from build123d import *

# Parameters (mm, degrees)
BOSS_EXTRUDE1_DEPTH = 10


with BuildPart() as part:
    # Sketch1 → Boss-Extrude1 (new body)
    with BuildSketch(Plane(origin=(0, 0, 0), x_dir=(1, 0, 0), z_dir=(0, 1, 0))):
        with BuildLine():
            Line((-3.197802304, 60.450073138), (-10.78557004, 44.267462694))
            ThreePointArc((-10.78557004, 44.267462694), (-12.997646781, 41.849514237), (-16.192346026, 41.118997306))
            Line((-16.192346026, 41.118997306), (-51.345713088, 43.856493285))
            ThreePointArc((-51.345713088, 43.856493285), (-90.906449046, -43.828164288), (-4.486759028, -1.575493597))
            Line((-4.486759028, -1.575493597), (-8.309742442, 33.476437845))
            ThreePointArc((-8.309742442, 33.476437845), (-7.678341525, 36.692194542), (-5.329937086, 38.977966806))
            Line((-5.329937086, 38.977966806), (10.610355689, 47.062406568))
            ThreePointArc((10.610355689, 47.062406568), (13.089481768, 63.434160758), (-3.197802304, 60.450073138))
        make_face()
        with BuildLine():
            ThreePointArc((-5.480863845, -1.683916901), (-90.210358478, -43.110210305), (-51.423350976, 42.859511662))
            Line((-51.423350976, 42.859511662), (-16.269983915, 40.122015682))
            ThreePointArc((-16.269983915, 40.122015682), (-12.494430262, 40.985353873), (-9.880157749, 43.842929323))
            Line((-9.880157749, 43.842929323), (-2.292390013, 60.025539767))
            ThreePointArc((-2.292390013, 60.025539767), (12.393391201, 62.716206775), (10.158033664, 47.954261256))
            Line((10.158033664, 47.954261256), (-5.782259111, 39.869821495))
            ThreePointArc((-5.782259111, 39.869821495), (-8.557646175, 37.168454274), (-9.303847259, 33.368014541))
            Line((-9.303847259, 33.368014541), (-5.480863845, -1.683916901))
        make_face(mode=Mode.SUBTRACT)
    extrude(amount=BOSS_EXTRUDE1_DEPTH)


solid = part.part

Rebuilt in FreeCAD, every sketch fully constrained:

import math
import FreeCAD as App
import Part
import Sketcher
from FreeCAD import Vector
Q = App.Units.Quantity

doc = App.newDocument("Part")
params = doc.addObject("Spreadsheet::Sheet", "Params")
for row, (alias, value) in enumerate([
    ("sketch1_radius", "5.5 mm"),
    ("sketch1_radius2", "6.5 mm"),
    ("sketch1_radius3", "51.13 mm"),
    ("sketch1_radius4", "10.17 mm"),
    ("pad1_length", "10 mm"),
], start=1):
    params.set(f"A{row}", alias)
    params.set(f"B{row}", "=" + value)
    params.setAlias(f"B{row}", alias)

body = doc.addObject("PartDesign::Body", "Body")

sketch1 = body.newObject("Sketcher::SketchObject", "Sketch")
sketch1.AttachmentSupport = (doc.getObject("XZ_Plane"), [""])
sketch1.MapMode = "FlatFace"
sketch1.addGeometry([
    Part.LineSegment(Vector(-3.197802, -60.450073, 0), Vector(-10.78557, -44.267463, 0)),
    Part.ArcOfCircle(Part.Circle(Vector(-15.765338, -46.602396, 0), Vector(0, 0, 1), 5.5), math.radians(25.121131), math.radians(94.452804)),
    Part.LineSegment(Vector(-16.192346, -41.118997, 0), Vector(-51.345713, -43.856493, 0)),
    Part.ArcOfCircle(Part.Circle(Vector(-55.315338, 7.119177, 0), Vector(0, 0, 1), 51.13), math.radians(-6.224434), math.radians(274.452804)),
    Part.LineSegment(Vector(-4.486759, 1.575494, 0), Vector(-8.309742, -33.476438, 0)),
    Part.ArcOfCircle(Part.Circle(Vector(-2.842166, -34.072766, 0), Vector(0, 0, 1), 5.5), math.radians(173.775566), math.radians(243.107239)),
    Part.LineSegment(Vector(-5.329937, -38.977967, 0), Vector(10.610356, -47.062407, 0)),
    Part.ArcOfCircle(Part.Circle(Vector(6.010241, -56.132569, 0), Vector(0, 0, 1), 10.17), math.radians(-154.878869), math.radians(63.107239)),
    Part.LineSegment(Vector(-9.303847, -33.368015, 0), Vector(-5.480864, 1.683917, 0)),
    Part.ArcOfCircle(Part.Circle(Vector(-55.315338, 7.119177, 0), Vector(0, 0, 1), 50.13), math.radians(-6.224434), math.radians(274.452804)),
    Part.LineSegment(Vector(-51.423351, -42.859512, 0), Vector(-16.269984, -40.122016, 0)),
    Part.ArcOfCircle(Part.Circle(Vector(-15.765338, -46.602396, 0), Vector(0, 0, 1), 6.5), math.radians(25.121131), math.radians(94.452804)),
    Part.LineSegment(Vector(-9.880158, -43.842929, 0), Vector(-2.29239, -60.02554, 0)),
    Part.ArcOfCircle(Part.Circle(Vector(6.010241, -56.132569, 0), Vector(0, 0, 1), 9.17), math.radians(-154.878869), math.radians(63.107239)),
    Part.LineSegment(Vector(10.158034, -47.954261, 0), Vector(-5.782259, -39.869821, 0)),
    Part.ArcOfCircle(Part.Circle(Vector(-2.842166, -34.072766, 0), Vector(0, 0, 1), 6.5), math.radians(173.775566), math.radians(243.107239)),
], False)
sketch1.addConstraint([
    Sketcher.Constraint("Tangent", 0, 2, 1, 1),
    Sketcher.Constraint("Tangent", 1, 2, 2, 1),
    Sketcher.Constraint("Tangent", 2, 2, 3, 2),
    Sketcher.Constraint("Tangent", 3, 1, 4, 1),
    Sketcher.Constraint("Tangent", 4, 2, 5, 1),
    Sketcher.Constraint("Tangent", 5, 2, 6, 1),
    Sketcher.Constraint("Tangent", 6, 2, 7, 2),
    Sketcher.Constraint("Tangent", 7, 1, 0, 1),
    Sketcher.Constraint("Tangent", 8, 2, 9, 1),
    Sketcher.Constraint("Tangent", 9, 2, 10, 1),
    Sketcher.Constraint("Tangent", 10, 2, 11, 2),
    Sketcher.Constraint("Tangent", 11, 1, 12, 1),
    Sketcher.Constraint("Tangent", 12, 2, 13, 1),
    Sketcher.Constraint("Tangent", 13, 2, 14, 1),
    Sketcher.Constraint("Tangent", 14, 2, 15, 2),
    Sketcher.Constraint("Tangent", 15, 1, 8, 1),
    Sketcher.Constraint("Coincident", 9, 3, 3, 3),
    Sketcher.Constraint("Coincident", 11, 3, 1, 3),
    Sketcher.Constraint("Coincident", 13, 3, 7, 3),
    Sketcher.Constraint("Coincident", 15, 3, 5, 3),
    Sketcher.Constraint("Equal", 1, 5),
    Sketcher.Constraint("Equal", 11, 15),
    Sketcher.Constraint("Parallel", 4, 8),
    Sketcher.Constraint("Parallel", 0, 12),
    Sketcher.Constraint("Equal", 2, 4),
    Sketcher.Constraint("Equal", 0, 6),
    Sketcher.Constraint("Radius", 1, Q("5.5 mm")),
    Sketcher.Constraint("Radius", 11, Q("6.5 mm")),
    Sketcher.Constraint("Radius", 3, Q("51.13 mm")),
    Sketcher.Constraint("Radius", 7, Q("10.17 mm")),
    Sketcher.Constraint("DistanceX", 3, 3, 1, 3, Q("39.550001 mm")),
    Sketcher.Constraint("DistanceY", 1, 3, 1, 2, Q("5.483399 mm")),
    Sketcher.Constraint("DistanceY", 5, 2, 5, 3, Q("4.905201 mm")),
    Sketcher.Constraint("DistanceX", 11, 1, 14, 2, Q("4.097899 mm")),
    Sketcher.Constraint("DistanceX", 3, 3, -1, 1, Q("55.315338 mm")),
    Sketcher.Constraint("DistanceY", 7, 3, -1, 1, Q("56.132569 mm")),
])
sketch1.setExpression("Constraints[26]", "Params.sketch1_radius")
sketch1.setExpression("Constraints[27]", "Params.sketch1_radius2")
sketch1.setExpression("Constraints[28]", "Params.sketch1_radius3")
sketch1.setExpression("Constraints[29]", "Params.sketch1_radius4")
pad1 = body.newObject("PartDesign::Pad", "Pad")
pad1.Profile = sketch1
pad1.setExpression("Length", "Params.pad1_length")
pad1.Reversed = True

doc.recompute()
